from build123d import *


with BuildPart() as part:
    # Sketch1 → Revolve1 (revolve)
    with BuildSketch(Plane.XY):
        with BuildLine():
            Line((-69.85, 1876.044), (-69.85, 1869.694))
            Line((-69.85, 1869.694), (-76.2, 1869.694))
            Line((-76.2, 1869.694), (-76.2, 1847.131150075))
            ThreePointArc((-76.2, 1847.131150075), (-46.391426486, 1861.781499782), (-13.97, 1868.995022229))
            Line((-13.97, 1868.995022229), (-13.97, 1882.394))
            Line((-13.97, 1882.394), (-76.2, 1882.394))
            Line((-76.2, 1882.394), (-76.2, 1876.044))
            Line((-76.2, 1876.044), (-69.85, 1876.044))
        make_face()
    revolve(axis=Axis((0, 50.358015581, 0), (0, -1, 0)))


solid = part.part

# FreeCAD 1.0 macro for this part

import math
import FreeCAD as App
import Part
import Sketcher
from FreeCAD import Vector
Q = App.Units.Quantity

doc = App.newDocument("Part")
body = doc.addObject("PartDesign::Body", "Body")

# Sketch on XY plane
sketch1 = doc.addObject("Sketcher::SketchObject", "Sketch")
body.addObject(sketch1)
sketch1.AttachmentSupport = (doc.XY_Plane, [""])
sketch1.MapMode = "FlatFace"
sketch1.addGeometry(Part.LineSegment(Vector(-70, 1876, 0), Vector(-70, 1870, 0)), False)
sketch1.addGeometry(Part.LineSegment(Vector(-70, 1870, 0), Vector(-76, 1870, 0)), False)
sketch1.addGeometry(Part.LineSegment(Vector(-76, 1870, 0), Vector(-76, 1847, 0)), False)
sketch1.addGeometry(Part.ArcOfCircle(Part.Circle(Vector(0, 1730, 0), Vector(0, 0, 1), 140), math.radians(96), math.radians(123)), False)
sketch1.addGeometry(Part.LineSegment(Vector(-14, 1869, 0), Vector(-14, 1882, 0)), False)
sketch1.addGeometry(Part.LineSegment(Vector(-14, 1882, 0), Vector(-76, 1882, 0)), False)
sketch1.addGeometry(Part.LineSegment(Vector(-76, 1882, 0), Vector(-76, 1876, 0)), False)
sketch1.addGeometry(Part.LineSegment(Vector(-76, 1876, 0), Vector(-70, 1876, 0)), False)
sketch1.addConstraint(Sketcher.Constraint("Coincident", 0, 2, 1, 1))
sketch1.addConstraint(Sketcher.Constraint("Coincident", 1, 2, 2, 1))
sketch1.addConstraint(Sketcher.Constraint("Coincident", 2, 2, 3, 2))
sketch1.addConstraint(Sketcher.Constraint("Coincident", 3, 1, 4, 1))
sketch1.addConstraint(Sketcher.Constraint("Coincident", 4, 2, 5, 1))
sketch1.addConstraint(Sketcher.Constraint("Coincident", 5, 2, 6, 1))
sketch1.addConstraint(Sketcher.Constraint("Coincident", 6, 2, 7, 1))
sketch1.addConstraint(Sketcher.Constraint("Coincident", 7, 2, 0, 1))
sketch1.addConstraint(Sketcher.Constraint("Vertical", 0))
sketch1.addConstraint(Sketcher.Constraint("Horizontal", 1))
sketch1.addConstraint(Sketcher.Constraint("Vertical", 2))
sketch1.addConstraint(Sketcher.Constraint("Vertical", 4))
sketch1.addConstraint(Sketcher.Constraint("Horizontal", 5))
sketch1.addConstraint(Sketcher.Constraint("Vertical", 6))
sketch1.addConstraint(Sketcher.Constraint("Horizontal", 7))
sketch1.addConstraint(Sketcher.Constraint("PointOnObject", 3, 3, -2))
sketch1.addConstraint(Sketcher.Constraint("Vertical", 2, 2, 5, 2))
sketch1.addConstraint(Sketcher.Constraint("Equal", 7, 0))
sketch1.addConstraint(Sketcher.Constraint("Equal", 0, 6))
sketch1.addConstraint(Sketcher.Constraint("Radius", 3, Q("5.51 in")))
sketch1.addConstraint(Sketcher.Constraint("DistanceX", 1, 2, -1, 1, Q("3 in")))
sketch1.addConstraint(Sketcher.Constraint("DistanceX", 1, 2, 1, 1, Q("0.25 in")))
sketch1.addConstraint(Sketcher.Constraint("DistanceX", 5, 2, 5, 1, Q("2.45 in")))
sketch1.addConstraint(Sketcher.Constraint("DistanceY", -1, 1, 3, 3, Q("68.1 in")))
sketch1.addConstraint(Sketcher.Constraint("DistanceY", -1, 1, 0, 2, Q("73.61 in")))
revolution = doc.addObject("PartDesign::Revolution", "Revolution")
body.addObject(revolution)
revolution.Profile = sketch1
revolution.ReferenceAxis = (sketch1, ["V_Axis"])
revolution.Angle = 360

doc.recompute()
